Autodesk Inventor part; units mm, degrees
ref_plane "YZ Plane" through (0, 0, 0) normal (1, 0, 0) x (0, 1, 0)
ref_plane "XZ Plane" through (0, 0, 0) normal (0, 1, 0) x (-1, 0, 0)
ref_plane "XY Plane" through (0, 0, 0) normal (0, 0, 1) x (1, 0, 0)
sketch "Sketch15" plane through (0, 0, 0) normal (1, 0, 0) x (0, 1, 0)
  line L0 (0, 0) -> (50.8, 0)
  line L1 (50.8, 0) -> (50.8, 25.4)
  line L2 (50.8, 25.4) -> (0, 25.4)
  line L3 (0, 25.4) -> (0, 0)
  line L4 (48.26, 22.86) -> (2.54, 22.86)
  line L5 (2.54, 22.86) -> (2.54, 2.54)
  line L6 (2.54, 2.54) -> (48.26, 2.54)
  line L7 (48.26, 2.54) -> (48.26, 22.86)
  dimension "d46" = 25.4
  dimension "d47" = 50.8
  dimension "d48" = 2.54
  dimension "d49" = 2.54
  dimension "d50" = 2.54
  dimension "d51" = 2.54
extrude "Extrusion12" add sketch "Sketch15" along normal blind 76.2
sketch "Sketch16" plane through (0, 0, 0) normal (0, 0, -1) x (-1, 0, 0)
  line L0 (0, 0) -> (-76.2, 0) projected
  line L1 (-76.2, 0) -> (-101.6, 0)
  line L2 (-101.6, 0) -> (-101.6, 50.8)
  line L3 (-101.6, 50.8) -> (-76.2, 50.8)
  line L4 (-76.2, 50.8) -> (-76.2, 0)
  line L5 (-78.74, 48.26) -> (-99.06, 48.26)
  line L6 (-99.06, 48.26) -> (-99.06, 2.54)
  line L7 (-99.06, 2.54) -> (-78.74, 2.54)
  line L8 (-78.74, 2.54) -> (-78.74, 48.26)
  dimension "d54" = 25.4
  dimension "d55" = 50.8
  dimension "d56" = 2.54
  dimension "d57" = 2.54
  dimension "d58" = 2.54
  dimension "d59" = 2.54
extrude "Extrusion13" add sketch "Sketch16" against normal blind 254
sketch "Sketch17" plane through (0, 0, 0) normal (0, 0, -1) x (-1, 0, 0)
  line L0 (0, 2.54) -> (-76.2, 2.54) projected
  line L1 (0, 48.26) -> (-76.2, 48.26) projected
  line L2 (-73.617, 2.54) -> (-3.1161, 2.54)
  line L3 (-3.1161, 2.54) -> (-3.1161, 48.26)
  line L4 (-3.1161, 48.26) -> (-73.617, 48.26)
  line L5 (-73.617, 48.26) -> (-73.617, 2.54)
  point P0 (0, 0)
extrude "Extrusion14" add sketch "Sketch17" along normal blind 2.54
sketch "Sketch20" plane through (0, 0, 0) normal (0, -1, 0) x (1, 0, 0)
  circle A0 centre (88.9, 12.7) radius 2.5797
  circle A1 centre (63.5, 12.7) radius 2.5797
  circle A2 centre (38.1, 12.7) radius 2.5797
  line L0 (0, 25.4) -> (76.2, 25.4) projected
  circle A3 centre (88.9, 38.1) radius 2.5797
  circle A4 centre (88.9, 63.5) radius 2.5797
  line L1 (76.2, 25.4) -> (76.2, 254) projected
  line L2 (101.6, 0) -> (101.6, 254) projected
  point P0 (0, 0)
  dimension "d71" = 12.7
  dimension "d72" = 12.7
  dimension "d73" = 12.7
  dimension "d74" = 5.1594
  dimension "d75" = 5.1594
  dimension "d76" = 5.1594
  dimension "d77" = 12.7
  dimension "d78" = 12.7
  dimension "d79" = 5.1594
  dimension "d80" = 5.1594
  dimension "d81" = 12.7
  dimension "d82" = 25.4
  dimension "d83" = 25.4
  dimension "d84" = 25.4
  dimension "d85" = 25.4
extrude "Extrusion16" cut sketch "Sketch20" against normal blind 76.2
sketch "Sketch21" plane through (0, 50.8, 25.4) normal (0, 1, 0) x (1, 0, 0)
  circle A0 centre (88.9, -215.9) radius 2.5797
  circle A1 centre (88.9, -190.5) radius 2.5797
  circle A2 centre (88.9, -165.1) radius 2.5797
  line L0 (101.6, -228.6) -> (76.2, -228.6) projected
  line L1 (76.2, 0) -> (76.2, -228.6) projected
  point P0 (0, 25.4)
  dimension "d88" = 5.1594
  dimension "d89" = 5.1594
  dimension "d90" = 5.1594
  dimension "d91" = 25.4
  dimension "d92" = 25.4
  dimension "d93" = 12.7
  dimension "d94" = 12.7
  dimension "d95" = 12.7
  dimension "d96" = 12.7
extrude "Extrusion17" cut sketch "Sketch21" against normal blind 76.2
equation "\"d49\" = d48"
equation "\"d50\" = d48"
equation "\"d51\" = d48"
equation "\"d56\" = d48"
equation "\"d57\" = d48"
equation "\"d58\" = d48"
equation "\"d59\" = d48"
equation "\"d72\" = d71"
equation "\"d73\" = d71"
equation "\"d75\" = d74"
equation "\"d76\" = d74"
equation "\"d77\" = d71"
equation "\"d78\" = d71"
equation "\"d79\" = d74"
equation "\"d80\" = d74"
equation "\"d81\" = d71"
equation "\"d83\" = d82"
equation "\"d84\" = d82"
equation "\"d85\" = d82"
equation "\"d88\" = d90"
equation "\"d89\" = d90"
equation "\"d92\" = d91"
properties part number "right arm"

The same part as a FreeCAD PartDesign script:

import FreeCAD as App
import Part
import Sketcher
from FreeCAD import Vector
Q = App.Units.Quantity


def add_polygon(sketch, points):
    """Adds a closed chain of lines whose ends are joined by coincident constraints."""
    first, n = sketch.GeometryCount, len(points)
    for a, b in zip(points, points[1:] + points[:1]):
        sketch.addGeometry(Part.LineSegment(App.Vector(*a, 0), App.Vector(*b, 0)), False)
    for i in range(n):
        sketch.addConstraint(Sketcher.Constraint("Coincident", first + i, 2, first + (i + 1) % n, 1))

doc = App.newDocument("Part")
body = doc.addObject("PartDesign::Body", "Body")

# Sketch on YZ plane
sketch1 = body.newObject("Sketcher::SketchObject", "Sketch")
sketch1.AttachmentSupport = (doc.getObject("YZ_Plane"), [""])
sketch1.MapMode = "FlatFace"
add_polygon(sketch1, [(0, 25.4), (0, 0), (50.8, 0), (50.8, 25.4)])  # lines 0-3
add_polygon(sketch1, [(2.54, 22.86), (48.26, 22.86), (48.26, 2.54), (2.54, 2.54)])  # lines 4-7
sketch1.addConstraint([
    Sketcher.Constraint("Vertical", 0),
    Sketcher.Constraint("Horizontal", 1),
    Sketcher.Constraint("Vertical", 2),
    Sketcher.Constraint("Horizontal", 3),
    Sketcher.Constraint("Horizontal", 4),
    Sketcher.Constraint("Vertical", 5),
    Sketcher.Constraint("Horizontal", 6),
    Sketcher.Constraint("Vertical", 7),
    Sketcher.Constraint("Coincident", 0, 2, -1, 1),
    Sketcher.Constraint("DistanceX", 1, 1, 1, 2, Q("2 in")),
    Sketcher.Constraint("DistanceY", 0, 2, 0, 1, Q("1 in")),
    Sketcher.Constraint("DistanceY", -1, 1, 5, 2, Q("0.1 in")),
    Sketcher.Constraint("DistanceX", -1, 1, 6, 2, Q("0.1 in")),
    Sketcher.Constraint("DistanceX", 4, 2, 2, 2, Q("0.1 in")),
    Sketcher.Constraint("DistanceY", 4, 2, 2, 2, Q("0.1 in")),
])
pad1 = body.newObject("PartDesign::Pad", "Pad")
pad1.Profile = sketch1
pad1.Length = Q("3 in")

# Sketch on XY plane
sketch2 = body.newObject("Sketcher::SketchObject", "Sketch001")
sketch2.AttachmentSupport = (doc.getObject("XY_Plane"), [""])
sketch2.MapMode = "FlatFace"
add_polygon(sketch2, [(101.6, 0), (76.2, 0), (76.2, 50.8), (101.6, 50.8)])  # lines 0-3
add_polygon(sketch2, [(99.06, 48.26), (78.74, 48.26), (78.74, 2.54), (99.06, 2.54)])  # lines 4-7
sketch2.addConstraint([
    Sketcher.Constraint("Horizontal", 0),
    Sketcher.Constraint("Vertical", 1),
    Sketcher.Constraint("Horizontal", 2),
    Sketcher.Constraint("Vertical", 3),
    Sketcher.Constraint("Horizontal", 4),
    Sketcher.Constraint("Vertical", 5),
    Sketcher.Constraint("Horizontal", 6),
    Sketcher.Constraint("Vertical", 7),
    Sketcher.Constraint("PointOnObject", 0, 2, -1),
    Sketcher.Constraint("DistanceX", 0, 2, 0, 1, Q("1 in")),
    Sketcher.Constraint("DistanceY", 1, 1, 1, 2, Q("2 in")),
    Sketcher.Constraint("DistanceY", -1, 1, 5, 2, Q("0.1 in")),
    Sketcher.Constraint("DistanceX", 1, 2, 4, 2, Q("0.1 in")),
    Sketcher.Constraint("DistanceY", 4, 2, 1, 2, Q("0.1 in")),
    Sketcher.Constraint("DistanceX", 6, 2, 3, 2, Q("0.1 in")),
    Sketcher.Constraint("DistanceX", -1, 1, 0, 2, Q("3 in")),
])
pad2 = body.newObject("PartDesign::Pad", "Pad001")
pad2.Profile = sketch2
pad2.Length = Q("10 in")

# Sketch on XY plane
sketch3 = body.newObject("Sketcher::SketchObject", "Sketch002")
sketch3.AttachmentSupport = (doc.getObject("XY_Plane"), [""])
sketch3.MapMode = "FlatFace"
add_polygon(sketch3, [(73.617, 2.54), (3.1161, 2.54), (3.1161, 48.26), (73.617, 48.26)])  # lines 0-3
sketch3.addConstraint([
    Sketcher.Constraint("Horizontal", 0),
    Sketcher.Constraint("Vertical", 1),
    Sketcher.Constraint("Horizontal", 2),
    Sketcher.Constraint("Vertical", 3),
    Sketcher.Constraint("DistanceY", 1, 1, 1, 2, Q("1.8 in")),
    Sketcher.Constraint("DistanceY", -1, 1, 0, 2, Q("0.1 in")),
    Sketcher.Constraint("DistanceX", 0, 2, 0, 1, Q("70.501 mm")),
    Sketcher.Constraint("DistanceX", -1, 1, 2, 2, Q("2.8983 in")),
])
pad3 = body.newObject("PartDesign::Pad", "Pad002")
pad3.Profile = sketch3
pad3.Length = Q("0.1 in")
pad3.Reversed = True

# Sketch on XZ plane
sketch4 = body.newObject("Sketcher::SketchObject", "Sketch003")
sketch4.AttachmentSupport = (doc.getObject("XZ_Plane"), [""])
sketch4.MapMode = "FlatFace"
sketch4.addGeometry([
    Part.Circle(Vector(88.9, 12.7, 0), Vector(0, 0, 1), 2.5797),  # 0
    Part.Circle(Vector(63.5, 12.7, 0), Vector(0, 0, 1), 2.5797),  # 1
    Part.Circle(Vector(38.1, 12.7, 0), Vector(0, 0, 1), 2.5797),  # 2
    Part.Circle(Vector(88.9, 38.1, 0), Vector(0, 0, 1), 2.5797),  # 3
    Part.Circle(Vector(88.9, 63.5, 0), Vector(0, 0, 1), 2.5797),  # 4
], False)
sketch4.addConstraint([
    Sketcher.Constraint("Equal", 0, 1),
    Sketcher.Constraint("Equal", 1, 2),
    Sketcher.Constraint("Equal", 2, 3),
    Sketcher.Constraint("Equal", 3, 4),
    Sketcher.Constraint("Horizontal", 0, 3, 1, 3),
    Sketcher.Constraint("Horizontal", 1, 3, 2, 3),
    Sketcher.Constraint("Vertical", 0, 3, 3, 3),
    Sketcher.Constraint("Vertical", 3, 3, 4, 3),
    Sketcher.Constraint("Diameter", 0, Q("0.203126 in")),
    Sketcher.Constraint("DistanceX", 1, 3, 0, 3, Q("1 in")),
    Sketcher.Constraint("DistanceX", 2, 3, 1, 3, Q("1 in")),
    Sketcher.Constraint("DistanceY", 0, 3, 3, 3, Q("1 in")),
    Sketcher.Constraint("DistanceY", 3, 3, 4, 3, Q("1 in")),
    Sketcher.Constraint("DistanceY", -1, 1, 0, 3, Q("0.5 in")),
    Sketcher.Constraint("DistanceX", -1, 1, 0, 3, Q("3.5 in")),
])
pocket1 = body.newObject("PartDesign::Pocket", "Pocket")
pocket1.Profile = sketch4
pocket1.Length = Q("3 in")

# Sketch on XZ plane
sketch5 = body.newObject("Sketcher::SketchObject", "Sketch004")
sketch5.AttachmentSupport = (doc.getObject("XZ_Plane"), [""])
sketch5.MapMode = "FlatFace"
sketch5.AttachmentOffset = App.Placement(Vector(0, 0, -2 * 25.4), App.Rotation())
sketch5.addGeometry([
    Part.Circle(Vector(88.9, 241.3, 0), Vector(0, 0, 1), 2.5797),
    Part.Circle(Vector(88.9, 215.9, 0), Vector(0, 0, 1), 2.5797),
    Part.Circle(Vector(88.9, 190.5, 0), Vector(0, 0, 1), 2.5797),
], False)
sketch5.addConstraint([
    Sketcher.Constraint("Equal", 0, 1),
    Sketcher.Constraint("Equal", 1, 2),
    Sketcher.Constraint("Vertical", 0, 3, 1, 3),
    Sketcher.Constraint("Vertical", 1, 3, 2, 3),
    Sketcher.Constraint("Diameter", 0, Q("0.203126 in")),
    Sketcher.Constraint("DistanceY", 1, 3, 0, 3, Q("1 in")),
    Sketcher.Constraint("DistanceY", 2, 3, 1, 3, Q("1 in")),
    Sketcher.Constraint("DistanceX", -1, 1, 0, 3, Q("3.5 in")),
    Sketcher.Constraint("DistanceY", -1, 1, 0, 3, Q("9.5 in")),
])
pocket2 = body.newObject("PartDesign::Pocket", "Pocket001")
pocket2.Profile = sketch5
pocket2.Length = Q("3 in")
pocket2.Reversed = True

doc.recompute()
